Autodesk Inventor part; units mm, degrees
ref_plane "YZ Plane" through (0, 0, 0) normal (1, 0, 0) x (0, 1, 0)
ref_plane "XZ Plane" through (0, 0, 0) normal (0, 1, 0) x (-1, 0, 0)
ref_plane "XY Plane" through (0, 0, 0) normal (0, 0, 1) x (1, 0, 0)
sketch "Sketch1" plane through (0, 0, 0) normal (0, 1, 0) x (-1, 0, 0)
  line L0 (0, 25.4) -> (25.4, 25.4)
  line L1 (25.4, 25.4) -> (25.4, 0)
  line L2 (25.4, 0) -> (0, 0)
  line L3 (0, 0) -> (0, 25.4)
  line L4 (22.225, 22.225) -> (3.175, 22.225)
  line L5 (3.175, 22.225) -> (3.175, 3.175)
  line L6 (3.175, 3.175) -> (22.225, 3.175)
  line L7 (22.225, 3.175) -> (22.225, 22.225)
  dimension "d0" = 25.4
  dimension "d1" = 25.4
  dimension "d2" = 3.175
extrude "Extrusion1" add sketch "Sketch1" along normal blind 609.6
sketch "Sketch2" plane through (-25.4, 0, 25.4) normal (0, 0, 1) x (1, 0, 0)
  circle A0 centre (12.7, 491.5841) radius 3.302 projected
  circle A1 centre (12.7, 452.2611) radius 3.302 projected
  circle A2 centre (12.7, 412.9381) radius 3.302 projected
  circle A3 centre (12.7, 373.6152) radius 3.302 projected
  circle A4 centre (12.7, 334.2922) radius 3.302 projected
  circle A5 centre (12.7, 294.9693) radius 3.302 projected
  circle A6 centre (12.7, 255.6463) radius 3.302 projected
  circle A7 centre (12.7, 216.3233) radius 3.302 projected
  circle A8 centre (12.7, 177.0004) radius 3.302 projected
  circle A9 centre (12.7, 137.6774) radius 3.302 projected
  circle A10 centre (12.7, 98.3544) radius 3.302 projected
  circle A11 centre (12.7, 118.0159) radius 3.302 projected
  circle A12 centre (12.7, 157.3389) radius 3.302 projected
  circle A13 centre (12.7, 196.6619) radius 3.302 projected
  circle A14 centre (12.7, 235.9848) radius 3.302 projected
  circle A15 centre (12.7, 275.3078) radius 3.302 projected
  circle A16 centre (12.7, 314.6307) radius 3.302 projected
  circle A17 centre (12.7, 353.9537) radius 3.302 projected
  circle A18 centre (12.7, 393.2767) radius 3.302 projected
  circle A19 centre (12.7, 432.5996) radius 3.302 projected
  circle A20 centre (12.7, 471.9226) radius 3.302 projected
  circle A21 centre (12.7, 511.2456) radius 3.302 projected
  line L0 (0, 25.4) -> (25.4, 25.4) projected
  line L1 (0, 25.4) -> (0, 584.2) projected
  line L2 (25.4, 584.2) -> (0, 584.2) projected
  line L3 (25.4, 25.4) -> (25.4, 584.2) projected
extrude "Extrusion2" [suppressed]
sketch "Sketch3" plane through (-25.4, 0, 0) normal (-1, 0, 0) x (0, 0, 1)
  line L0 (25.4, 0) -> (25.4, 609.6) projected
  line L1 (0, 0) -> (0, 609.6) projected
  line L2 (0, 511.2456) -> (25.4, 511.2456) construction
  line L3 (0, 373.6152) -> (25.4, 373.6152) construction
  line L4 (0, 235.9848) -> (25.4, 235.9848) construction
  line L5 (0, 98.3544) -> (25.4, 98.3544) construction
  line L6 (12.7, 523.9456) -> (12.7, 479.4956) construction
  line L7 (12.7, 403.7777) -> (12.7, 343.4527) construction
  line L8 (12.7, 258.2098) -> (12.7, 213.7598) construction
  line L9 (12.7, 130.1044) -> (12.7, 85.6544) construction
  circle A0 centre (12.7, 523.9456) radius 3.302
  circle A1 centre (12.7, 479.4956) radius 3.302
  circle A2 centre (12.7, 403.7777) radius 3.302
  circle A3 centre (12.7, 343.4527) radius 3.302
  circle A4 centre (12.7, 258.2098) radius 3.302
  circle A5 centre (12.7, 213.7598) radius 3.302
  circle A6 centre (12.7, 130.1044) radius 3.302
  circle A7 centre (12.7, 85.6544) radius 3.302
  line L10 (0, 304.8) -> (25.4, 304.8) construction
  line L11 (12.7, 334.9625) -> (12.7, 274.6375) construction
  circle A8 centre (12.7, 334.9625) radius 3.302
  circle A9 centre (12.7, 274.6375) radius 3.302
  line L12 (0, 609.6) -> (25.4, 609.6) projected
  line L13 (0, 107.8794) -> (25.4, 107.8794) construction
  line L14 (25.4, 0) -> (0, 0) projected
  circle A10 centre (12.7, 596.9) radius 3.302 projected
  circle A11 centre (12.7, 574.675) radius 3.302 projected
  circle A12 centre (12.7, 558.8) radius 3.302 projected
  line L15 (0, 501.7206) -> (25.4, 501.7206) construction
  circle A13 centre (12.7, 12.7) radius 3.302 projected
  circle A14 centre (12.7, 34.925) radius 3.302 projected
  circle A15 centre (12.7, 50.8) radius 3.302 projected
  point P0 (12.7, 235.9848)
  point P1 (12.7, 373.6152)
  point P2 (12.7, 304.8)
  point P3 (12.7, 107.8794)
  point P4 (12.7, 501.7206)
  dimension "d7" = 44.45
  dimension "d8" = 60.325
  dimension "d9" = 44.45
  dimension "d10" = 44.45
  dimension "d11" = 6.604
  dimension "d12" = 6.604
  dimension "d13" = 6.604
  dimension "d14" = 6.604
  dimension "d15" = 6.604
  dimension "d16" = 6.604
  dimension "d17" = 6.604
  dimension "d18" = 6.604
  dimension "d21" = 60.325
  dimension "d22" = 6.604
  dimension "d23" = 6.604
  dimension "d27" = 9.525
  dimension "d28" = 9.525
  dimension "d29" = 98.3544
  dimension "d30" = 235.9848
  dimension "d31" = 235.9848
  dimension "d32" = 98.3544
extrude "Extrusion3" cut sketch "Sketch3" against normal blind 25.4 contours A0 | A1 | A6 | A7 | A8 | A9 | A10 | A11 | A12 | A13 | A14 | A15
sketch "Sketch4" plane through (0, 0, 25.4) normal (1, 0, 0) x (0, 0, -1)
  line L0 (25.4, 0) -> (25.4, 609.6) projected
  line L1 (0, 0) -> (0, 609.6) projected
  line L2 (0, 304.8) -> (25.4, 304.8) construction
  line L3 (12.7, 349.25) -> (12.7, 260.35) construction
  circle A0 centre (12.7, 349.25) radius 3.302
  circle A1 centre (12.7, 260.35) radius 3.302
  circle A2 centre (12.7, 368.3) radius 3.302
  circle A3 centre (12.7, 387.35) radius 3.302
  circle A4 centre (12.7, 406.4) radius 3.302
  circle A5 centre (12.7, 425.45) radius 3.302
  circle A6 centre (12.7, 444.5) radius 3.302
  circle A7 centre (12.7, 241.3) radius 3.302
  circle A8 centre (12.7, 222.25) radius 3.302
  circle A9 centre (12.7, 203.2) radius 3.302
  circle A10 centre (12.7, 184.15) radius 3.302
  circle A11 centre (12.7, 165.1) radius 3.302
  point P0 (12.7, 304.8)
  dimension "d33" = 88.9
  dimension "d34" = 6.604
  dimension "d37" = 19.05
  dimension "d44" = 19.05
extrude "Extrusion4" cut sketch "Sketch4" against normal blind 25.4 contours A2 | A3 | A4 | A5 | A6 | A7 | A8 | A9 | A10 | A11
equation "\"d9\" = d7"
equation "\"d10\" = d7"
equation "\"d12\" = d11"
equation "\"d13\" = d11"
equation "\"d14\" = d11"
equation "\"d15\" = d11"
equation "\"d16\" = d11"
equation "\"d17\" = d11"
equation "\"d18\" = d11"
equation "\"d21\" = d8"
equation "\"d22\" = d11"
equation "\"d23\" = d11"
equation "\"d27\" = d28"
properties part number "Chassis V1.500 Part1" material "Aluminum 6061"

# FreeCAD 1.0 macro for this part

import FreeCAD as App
import Part
import Sketcher

V = App.Vector
Q = App.Units.Quantity

doc = App.newDocument("Part")
body = doc.addObject("PartDesign::Body", "Body")

# Sketch on XZ plane
sketch1 = body.newObject("Sketcher::SketchObject", "Sketch")
sketch1.AttachmentSupport = (doc.getObject("XZ_Plane"), [""])
sketch1.MapMode = "FlatFace"
sketch1.addGeometry(Part.LineSegment(V(-25, 25, 0), V(0, 25, 0)), False)
sketch1.addGeometry(Part.LineSegment(V(0, 25, 0), V(0, 0, 0)), False)
sketch1.addGeometry(Part.LineSegment(V(0, 0, 0), V(-25, 0, 0)), False)
sketch1.addGeometry(Part.LineSegment(V(-25, 0, 0), V(-25, 25, 0)), False)
sketch1.addGeometry(Part.LineSegment(V(-3, 22, 0), V(-22, 22, 0)), False)
sketch1.addGeometry(Part.LineSegment(V(-22, 22, 0), V(-22, 3, 0)), False)
sketch1.addGeometry(Part.LineSegment(V(-22, 3, 0), V(-3, 3, 0)), False)
sketch1.addGeometry(Part.LineSegment(V(-3, 3, 0), V(-3, 22, 0)), False)
sketch1.addConstraint(Sketcher.Constraint("Coincident", 0, 2, 1, 1))
sketch1.addConstraint(Sketcher.Constraint("Coincident", 1, 2, 2, 1))
sketch1.addConstraint(Sketcher.Constraint("Coincident", 2, 2, 3, 1))
sketch1.addConstraint(Sketcher.Constraint("Coincident", 3, 2, 0, 1))
sketch1.addConstraint(Sketcher.Constraint("Coincident", 4, 2, 5, 1))
sketch1.addConstraint(Sketcher.Constraint("Coincident", 5, 2, 6, 1))
sketch1.addConstraint(Sketcher.Constraint("Coincident", 6, 2, 7, 1))
sketch1.addConstraint(Sketcher.Constraint("Coincident", 7, 2, 4, 1))
sketch1.addConstraint(Sketcher.Constraint("Horizontal", 0))
sketch1.addConstraint(Sketcher.Constraint("Vertical", 1))
sketch1.addConstraint(Sketcher.Constraint("Horizontal", 2))
sketch1.addConstraint(Sketcher.Constraint("Vertical", 3))
sketch1.addConstraint(Sketcher.Constraint("Horizontal", 4))
sketch1.addConstraint(Sketcher.Constraint("Vertical", 5))
sketch1.addConstraint(Sketcher.Constraint("Horizontal", 6))
sketch1.addConstraint(Sketcher.Constraint("Vertical", 7))
sketch1.addConstraint(Sketcher.Constraint("Coincident", 1, 2, -1, 1))
sketch1.addConstraint(Sketcher.Constraint("Equal", 2, 1))
sketch1.addConstraint(Sketcher.Constraint("Equal", 6, 5))
sketch1.addConstraint(Sketcher.Constraint("DistanceX", 0, 1, 0, 2, Q("1 in")))
sketch1.addConstraint(Sketcher.Constraint("DistanceY", -1, 1, 5, 2, Q("0.125 in")))
sketch1.addConstraint(Sketcher.Constraint("DistanceX", 6, 2, -1, 1, Q("0.125 in")))
sketch1.addConstraint(Sketcher.Constraint("DistanceX", 3, 2, 4, 2, Q("0.125 in")))
pad1 = body.newObject("PartDesign::Pad", "Pad")
pad1.Profile = sketch1
pad1.Length = Q("24 in")
pad1.Reversed = True

# Sketch on YZ plane
sketch2 = body.newObject("Sketcher::SketchObject", "Sketch001")
sketch2.AttachmentSupport = (doc.getObject("YZ_Plane"), [""])
sketch2.MapMode = "FlatFace"
sketch2.AttachmentOffset = App.Placement(V(0, 0, -1 * 25.4), App.Rotation())
sketch2.addGeometry(Part.Circle(V(523.9, 12.7, 0), V(0, 0, 1), 3.3), False)
sketch2.addGeometry(Part.Circle(V(479.5, 12.7, 0), V(0, 0, 1), 3.3), False)
sketch2.addGeometry(Part.Circle(V(130.1, 12.7, 0), V(0, 0, 1), 3.3), False)
sketch2.addGeometry(Part.Circle(V(85.7, 12.7, 0), V(0, 0, 1), 3.3), False)
sketch2.addGeometry(Part.Circle(V(335, 12.7, 0), V(0, 0, 1), 3.3), False)
sketch2.addGeometry(Part.Circle(V(274.6, 12.7, 0), V(0, 0, 1), 3.3), False)
sketch2.addGeometry(Part.Circle(V(596.9, 12.7, 0), V(0, 0, 1), 3.3), False)
sketch2.addGeometry(Part.Circle(V(574.7, 12.7, 0), V(0, 0, 1), 3.3), False)
sketch2.addGeometry(Part.Circle(V(558.8, 12.7, 0), V(0, 0, 1), 3.3), False)
sketch2.addGeometry(Part.Circle(V(12.7, 12.7, 0), V(0, 0, 1), 3.3), False)
sketch2.addGeometry(Part.Circle(V(34.9, 12.7, 0), V(0, 0, 1), 3.3), False)
sketch2.addGeometry(Part.Circle(V(50.8, 12.7, 0), V(0, 0, 1), 3.3), False)
sketch2.addConstraint(Sketcher.Constraint("Equal", 0, 1))
sketch2.addConstraint(Sketcher.Constraint("Equal", 1, 2))
sketch2.addConstraint(Sketcher.Constraint("Equal", 2, 3))
sketch2.addConstraint(Sketcher.Constraint("Equal", 3, 4))
sketch2.addConstraint(Sketcher.Constraint("Equal", 4, 5))
sketch2.addConstraint(Sketcher.Constraint("Equal", 5, 6))
sketch2.addConstraint(Sketcher.Constraint("Equal", 6, 7))
sketch2.addConstraint(Sketcher.Constraint("Equal", 7, 8))
sketch2.addConstraint(Sketcher.Constraint("Equal", 8, 9))
sketch2.addConstraint(Sketcher.Constraint("Equal", 9, 10))
sketch2.addConstraint(Sketcher.Constraint("Equal", 10, 11))
sketch2.addConstraint(Sketcher.Constraint("Horizontal", 0, 3, 1, 3))
sketch2.addConstraint(Sketcher.Constraint("Horizontal", 1, 3, 2, 3))
sketch2.addConstraint(Sketcher.Constraint("Horizontal", 2, 3, 3, 3))
sketch2.addConstraint(Sketcher.Constraint("Horizontal", 3, 3, 4, 3))
sketch2.addConstraint(Sketcher.Constraint("Horizontal", 4, 3, 5, 3))
sketch2.addConstraint(Sketcher.Constraint("Horizontal", 5, 3, 6, 3))
sketch2.addConstraint(Sketcher.Constraint("Horizontal", 6, 3, 7, 3))
sketch2.addConstraint(Sketcher.Constraint("Horizontal", 7, 3, 8, 3))
sketch2.addConstraint(Sketcher.Constraint("Horizontal", 8, 3, 9, 3))
sketch2.addConstraint(Sketcher.Constraint("Horizontal", 9, 3, 10, 3))
sketch2.addConstraint(Sketcher.Constraint("Horizontal", 10, 3, 11, 3))
sketch2.addConstraint(Sketcher.Constraint("Diameter", 0, Q("0.26 in")))
sketch2.addConstraint(Sketcher.Constraint("DistanceX", 1, 3, 0, 3, Q("1.75 in")))
sketch2.addConstraint(Sketcher.Constraint("DistanceX", 3, 3, 2, 3, Q("1.75 in")))
sketch2.addConstraint(Sketcher.Constraint("DistanceX", -1, 1, 8, 3, Q("22 in")))
sketch2.addConstraint(Sketcher.Constraint("DistanceX", -1, 1, 11, 3, Q("2 in")))
sketch2.addConstraint(Sketcher.Constraint("DistanceX", 5, 3, 4, 3, Q("2.375 in")))
sketch2.addConstraint(Sketcher.Constraint("DistanceY", -1, 1, 0, 3, Q("0.5 in")))
sketch2.addConstraint(Sketcher.Constraint("DistanceX", -1, 1, 6, 3, Q("23.5 in")))
sketch2.addConstraint(Sketcher.Constraint("DistanceX", -1, 1, 9, 3, Q("0.5 in")))
sketch2.addConstraint(Sketcher.Constraint("DistanceX", -1, 1, 4, 3, Q("13.1875 in")))
sketch2.addConstraint(Sketcher.Constraint("DistanceX", -1, 1, 7, 3, Q("22.625 in")))
sketch2.addConstraint(Sketcher.Constraint("DistanceX", -1, 1, 10, 3, Q("1.375 in")))
sketch2.addConstraint(Sketcher.Constraint("DistanceX", -1, 1, 0, 3, Q("523.9456 mm")))
sketch2.addConstraint(Sketcher.Constraint("DistanceX", -1, 1, 2, 3, Q("130.1044 mm")))
pocket1 = body.newObject("PartDesign::Pocket", "Pocket")
pocket1.Profile = sketch2
pocket1.Length = Q("1 in")
pocket1.Reversed = True

# Sketch on YZ plane
sketch3 = body.newObject("Sketcher::SketchObject", "Sketch002")
sketch3.AttachmentSupport = (doc.getObject("YZ_Plane"), [""])
sketch3.MapMode = "FlatFace"
sketch3.addGeometry(Part.Circle(V(368.3, 12.7, 0), V(0, 0, 1), 3.3), False)
sketch3.addGeometry(Part.Circle(V(387.4, 12.7, 0), V(0, 0, 1), 3.3), False)
sketch3.addGeometry(Part.Circle(V(406.4, 12.7, 0), V(0, 0, 1), 3.3), False)
sketch3.addGeometry(Part.Circle(V(425.4, 12.7, 0), V(0, 0, 1), 3.3), False)
sketch3.addGeometry(Part.Circle(V(444.5, 12.7, 0), V(0, 0, 1), 3.3), False)
sketch3.addGeometry(Part.Circle(V(241.3, 12.7, 0), V(0, 0, 1), 3.3), False)
sketch3.addGeometry(Part.Circle(V(222.2, 12.7, 0), V(0, 0, 1), 3.3), False)
sketch3.addGeometry(Part.Circle(V(203.2, 12.7, 0), V(0, 0, 1), 3.3), False)
sketch3.addGeometry(Part.Circle(V(184.2, 12.7, 0), V(0, 0, 1), 3.3), False)
sketch3.addGeometry(Part.Circle(V(165.1, 12.7, 0), V(0, 0, 1), 3.3), False)
sketch3.addConstraint(Sketcher.Constraint("Equal", 0, 1))
sketch3.addConstraint(Sketcher.Constraint("Equal", 1, 2))
sketch3.addConstraint(Sketcher.Constraint("Equal", 2, 3))
sketch3.addConstraint(Sketcher.Constraint("Equal", 3, 4))
sketch3.addConstraint(Sketcher.Constraint("Equal", 4, 5))
sketch3.addConstraint(Sketcher.Constraint("Equal", 5, 6))
sketch3.addConstraint(Sketcher.Constraint("Equal", 6, 7))
sketch3.addConstraint(Sketcher.Constraint("Equal", 7, 8))
sketch3.addConstraint(Sketcher.Constraint("Equal", 8, 9))
sketch3.addConstraint(Sketcher.Constraint("Horizontal", 0, 3, 1, 3))
sketch3.addConstraint(Sketcher.Constraint("Horizontal", 1, 3, 2, 3))
sketch3.addConstraint(Sketcher.Constraint("Horizontal", 2, 3, 3, 3))
sketch3.addConstraint(Sketcher.Constraint("Horizontal", 3, 3, 4, 3))
sketch3.addConstraint(Sketcher.Constraint("Horizontal", 4, 3, 5, 3))
sketch3.addConstraint(Sketcher.Constraint("Horizontal", 5, 3, 6, 3))
sketch3.addConstraint(Sketcher.Constraint("Horizontal", 6, 3, 7, 3))
sketch3.addConstraint(Sketcher.Constraint("Horizontal", 7, 3, 8, 3))
sketch3.addConstraint(Sketcher.Constraint("Horizontal", 8, 3, 9, 3))
sketch3.addConstraint(Sketcher.Constraint("Diameter", 0, Q("0.26 in")))
sketch3.addConstraint(Sketcher.Constraint("DistanceX", 0, 3, 1, 3, Q("0.75 in")))
sketch3.addConstraint(Sketcher.Constraint("DistanceX", 1, 3, 2, 3, Q("0.75 in")))
sketch3.addConstraint(Sketcher.Constraint("DistanceX", 2, 3, 3, 3, Q("0.75 in")))
sketch3.addConstraint(Sketcher.Constraint("DistanceX", 3, 3, 4, 3, Q("0.75 in")))
sketch3.addConstraint(Sketcher.Constraint("DistanceX", 6, 3, 5, 3, Q("0.75 in")))
sketch3.addConstraint(Sketcher.Constraint("DistanceX", 7, 3, 6, 3, Q("0.75 in")))
sketch3.addConstraint(Sketcher.Constraint("DistanceX", 8, 3, 7, 3, Q("0.75 in")))
sketch3.addConstraint(Sketcher.Constraint("DistanceX", 9, 3, 8, 3, Q("0.75 in")))
sketch3.addConstraint(Sketcher.Constraint("DistanceX", -1, 1, 2, 3, Q("16 in")))
sketch3.addConstraint(Sketcher.Constraint("DistanceX", -1, 1, 7, 3, Q("8 in")))
sketch3.addConstraint(Sketcher.Constraint("DistanceY", -1, 1, 0, 3, Q("0.5 in")))
pocket2 = body.newObject("PartDesign::Pocket", "Pocket001")
pocket2.Profile = sketch3
pocket2.Length = Q("1 in")

doc.recompute()
